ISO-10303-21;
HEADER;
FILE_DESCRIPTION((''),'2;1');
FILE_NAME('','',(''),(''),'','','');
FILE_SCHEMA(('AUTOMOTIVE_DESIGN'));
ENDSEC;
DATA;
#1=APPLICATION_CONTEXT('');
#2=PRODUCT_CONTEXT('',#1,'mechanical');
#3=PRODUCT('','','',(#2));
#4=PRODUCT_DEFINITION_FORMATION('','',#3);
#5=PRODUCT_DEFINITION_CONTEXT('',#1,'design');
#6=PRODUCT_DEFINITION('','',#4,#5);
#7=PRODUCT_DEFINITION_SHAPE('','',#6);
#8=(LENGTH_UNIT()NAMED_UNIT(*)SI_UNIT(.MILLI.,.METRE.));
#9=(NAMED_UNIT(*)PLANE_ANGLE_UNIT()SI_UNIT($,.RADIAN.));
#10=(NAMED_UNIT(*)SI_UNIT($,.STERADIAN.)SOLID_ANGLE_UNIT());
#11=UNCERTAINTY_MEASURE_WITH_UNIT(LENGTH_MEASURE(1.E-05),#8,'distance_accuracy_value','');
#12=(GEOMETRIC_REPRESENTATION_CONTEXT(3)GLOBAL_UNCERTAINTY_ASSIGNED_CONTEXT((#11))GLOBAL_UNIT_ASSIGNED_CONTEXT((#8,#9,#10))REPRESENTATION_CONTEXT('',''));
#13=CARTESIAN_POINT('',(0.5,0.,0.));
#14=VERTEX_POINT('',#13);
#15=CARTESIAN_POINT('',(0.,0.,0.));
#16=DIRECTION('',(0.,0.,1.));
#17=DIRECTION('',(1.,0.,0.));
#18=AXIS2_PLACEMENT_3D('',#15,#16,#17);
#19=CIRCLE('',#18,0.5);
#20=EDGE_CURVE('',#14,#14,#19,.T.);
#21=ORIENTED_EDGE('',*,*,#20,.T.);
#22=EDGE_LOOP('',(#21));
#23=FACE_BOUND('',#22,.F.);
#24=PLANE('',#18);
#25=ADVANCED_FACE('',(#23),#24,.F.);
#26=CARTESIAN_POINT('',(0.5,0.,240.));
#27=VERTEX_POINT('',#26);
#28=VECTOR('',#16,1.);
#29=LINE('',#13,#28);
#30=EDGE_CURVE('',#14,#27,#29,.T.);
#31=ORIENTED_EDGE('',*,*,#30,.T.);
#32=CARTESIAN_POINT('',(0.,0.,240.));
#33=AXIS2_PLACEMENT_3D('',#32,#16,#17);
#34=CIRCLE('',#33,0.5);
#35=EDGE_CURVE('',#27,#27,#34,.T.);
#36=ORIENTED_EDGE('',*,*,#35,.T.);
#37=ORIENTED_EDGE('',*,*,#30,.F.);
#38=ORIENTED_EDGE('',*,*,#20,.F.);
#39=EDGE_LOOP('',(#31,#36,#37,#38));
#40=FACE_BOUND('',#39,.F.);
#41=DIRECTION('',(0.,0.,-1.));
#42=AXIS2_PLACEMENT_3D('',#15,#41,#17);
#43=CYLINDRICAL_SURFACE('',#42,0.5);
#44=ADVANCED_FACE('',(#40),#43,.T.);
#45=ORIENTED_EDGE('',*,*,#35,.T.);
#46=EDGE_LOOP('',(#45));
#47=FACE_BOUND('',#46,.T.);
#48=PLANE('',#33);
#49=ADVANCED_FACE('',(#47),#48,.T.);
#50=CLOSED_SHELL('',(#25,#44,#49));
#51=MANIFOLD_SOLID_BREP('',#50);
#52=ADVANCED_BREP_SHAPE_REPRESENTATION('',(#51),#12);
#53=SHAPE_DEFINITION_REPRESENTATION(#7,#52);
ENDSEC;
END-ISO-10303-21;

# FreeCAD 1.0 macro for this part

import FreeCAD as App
import Part
import Sketcher

doc = App.newDocument("Part")
params = doc.addObject("Spreadsheet::Sheet", "Params")
for row, (alias, value) in enumerate([
    ("sketch1_diameter", "1 mm"),
    ("pad1_length", "240 mm"),
], start=1):
    params.set(f"A{row}", alias)
    params.set(f"B{row}", "=" + value)
    params.setAlias(f"B{row}", alias)

body = doc.addObject("PartDesign::Body", "Body")

# Sketch on XY plane
sketch1 = body.newObject("Sketcher::SketchObject", "Sketch")
sketch1.AttachmentSupport = (doc.getObject("XY_Plane"), [""])
sketch1.MapMode = "FlatFace"
sketch1.addGeometry(Part.Circle(App.Vector(0, 0, 0), App.Vector(0, 0, 1), 0.5), False)
sketch1.addConstraint([
    Sketcher.Constraint("Coincident", 0, 3, -1, 1),
    Sketcher.Constraint("Diameter", 0, 1.0),
])
sketch1.setExpression("Constraints[1]", "Params.sketch1_diameter")
pad1 = body.newObject("PartDesign::Pad", "Pad")
pad1.Profile = sketch1
pad1.setExpression("Length", "Params.pad1_length")

doc.recompute()
